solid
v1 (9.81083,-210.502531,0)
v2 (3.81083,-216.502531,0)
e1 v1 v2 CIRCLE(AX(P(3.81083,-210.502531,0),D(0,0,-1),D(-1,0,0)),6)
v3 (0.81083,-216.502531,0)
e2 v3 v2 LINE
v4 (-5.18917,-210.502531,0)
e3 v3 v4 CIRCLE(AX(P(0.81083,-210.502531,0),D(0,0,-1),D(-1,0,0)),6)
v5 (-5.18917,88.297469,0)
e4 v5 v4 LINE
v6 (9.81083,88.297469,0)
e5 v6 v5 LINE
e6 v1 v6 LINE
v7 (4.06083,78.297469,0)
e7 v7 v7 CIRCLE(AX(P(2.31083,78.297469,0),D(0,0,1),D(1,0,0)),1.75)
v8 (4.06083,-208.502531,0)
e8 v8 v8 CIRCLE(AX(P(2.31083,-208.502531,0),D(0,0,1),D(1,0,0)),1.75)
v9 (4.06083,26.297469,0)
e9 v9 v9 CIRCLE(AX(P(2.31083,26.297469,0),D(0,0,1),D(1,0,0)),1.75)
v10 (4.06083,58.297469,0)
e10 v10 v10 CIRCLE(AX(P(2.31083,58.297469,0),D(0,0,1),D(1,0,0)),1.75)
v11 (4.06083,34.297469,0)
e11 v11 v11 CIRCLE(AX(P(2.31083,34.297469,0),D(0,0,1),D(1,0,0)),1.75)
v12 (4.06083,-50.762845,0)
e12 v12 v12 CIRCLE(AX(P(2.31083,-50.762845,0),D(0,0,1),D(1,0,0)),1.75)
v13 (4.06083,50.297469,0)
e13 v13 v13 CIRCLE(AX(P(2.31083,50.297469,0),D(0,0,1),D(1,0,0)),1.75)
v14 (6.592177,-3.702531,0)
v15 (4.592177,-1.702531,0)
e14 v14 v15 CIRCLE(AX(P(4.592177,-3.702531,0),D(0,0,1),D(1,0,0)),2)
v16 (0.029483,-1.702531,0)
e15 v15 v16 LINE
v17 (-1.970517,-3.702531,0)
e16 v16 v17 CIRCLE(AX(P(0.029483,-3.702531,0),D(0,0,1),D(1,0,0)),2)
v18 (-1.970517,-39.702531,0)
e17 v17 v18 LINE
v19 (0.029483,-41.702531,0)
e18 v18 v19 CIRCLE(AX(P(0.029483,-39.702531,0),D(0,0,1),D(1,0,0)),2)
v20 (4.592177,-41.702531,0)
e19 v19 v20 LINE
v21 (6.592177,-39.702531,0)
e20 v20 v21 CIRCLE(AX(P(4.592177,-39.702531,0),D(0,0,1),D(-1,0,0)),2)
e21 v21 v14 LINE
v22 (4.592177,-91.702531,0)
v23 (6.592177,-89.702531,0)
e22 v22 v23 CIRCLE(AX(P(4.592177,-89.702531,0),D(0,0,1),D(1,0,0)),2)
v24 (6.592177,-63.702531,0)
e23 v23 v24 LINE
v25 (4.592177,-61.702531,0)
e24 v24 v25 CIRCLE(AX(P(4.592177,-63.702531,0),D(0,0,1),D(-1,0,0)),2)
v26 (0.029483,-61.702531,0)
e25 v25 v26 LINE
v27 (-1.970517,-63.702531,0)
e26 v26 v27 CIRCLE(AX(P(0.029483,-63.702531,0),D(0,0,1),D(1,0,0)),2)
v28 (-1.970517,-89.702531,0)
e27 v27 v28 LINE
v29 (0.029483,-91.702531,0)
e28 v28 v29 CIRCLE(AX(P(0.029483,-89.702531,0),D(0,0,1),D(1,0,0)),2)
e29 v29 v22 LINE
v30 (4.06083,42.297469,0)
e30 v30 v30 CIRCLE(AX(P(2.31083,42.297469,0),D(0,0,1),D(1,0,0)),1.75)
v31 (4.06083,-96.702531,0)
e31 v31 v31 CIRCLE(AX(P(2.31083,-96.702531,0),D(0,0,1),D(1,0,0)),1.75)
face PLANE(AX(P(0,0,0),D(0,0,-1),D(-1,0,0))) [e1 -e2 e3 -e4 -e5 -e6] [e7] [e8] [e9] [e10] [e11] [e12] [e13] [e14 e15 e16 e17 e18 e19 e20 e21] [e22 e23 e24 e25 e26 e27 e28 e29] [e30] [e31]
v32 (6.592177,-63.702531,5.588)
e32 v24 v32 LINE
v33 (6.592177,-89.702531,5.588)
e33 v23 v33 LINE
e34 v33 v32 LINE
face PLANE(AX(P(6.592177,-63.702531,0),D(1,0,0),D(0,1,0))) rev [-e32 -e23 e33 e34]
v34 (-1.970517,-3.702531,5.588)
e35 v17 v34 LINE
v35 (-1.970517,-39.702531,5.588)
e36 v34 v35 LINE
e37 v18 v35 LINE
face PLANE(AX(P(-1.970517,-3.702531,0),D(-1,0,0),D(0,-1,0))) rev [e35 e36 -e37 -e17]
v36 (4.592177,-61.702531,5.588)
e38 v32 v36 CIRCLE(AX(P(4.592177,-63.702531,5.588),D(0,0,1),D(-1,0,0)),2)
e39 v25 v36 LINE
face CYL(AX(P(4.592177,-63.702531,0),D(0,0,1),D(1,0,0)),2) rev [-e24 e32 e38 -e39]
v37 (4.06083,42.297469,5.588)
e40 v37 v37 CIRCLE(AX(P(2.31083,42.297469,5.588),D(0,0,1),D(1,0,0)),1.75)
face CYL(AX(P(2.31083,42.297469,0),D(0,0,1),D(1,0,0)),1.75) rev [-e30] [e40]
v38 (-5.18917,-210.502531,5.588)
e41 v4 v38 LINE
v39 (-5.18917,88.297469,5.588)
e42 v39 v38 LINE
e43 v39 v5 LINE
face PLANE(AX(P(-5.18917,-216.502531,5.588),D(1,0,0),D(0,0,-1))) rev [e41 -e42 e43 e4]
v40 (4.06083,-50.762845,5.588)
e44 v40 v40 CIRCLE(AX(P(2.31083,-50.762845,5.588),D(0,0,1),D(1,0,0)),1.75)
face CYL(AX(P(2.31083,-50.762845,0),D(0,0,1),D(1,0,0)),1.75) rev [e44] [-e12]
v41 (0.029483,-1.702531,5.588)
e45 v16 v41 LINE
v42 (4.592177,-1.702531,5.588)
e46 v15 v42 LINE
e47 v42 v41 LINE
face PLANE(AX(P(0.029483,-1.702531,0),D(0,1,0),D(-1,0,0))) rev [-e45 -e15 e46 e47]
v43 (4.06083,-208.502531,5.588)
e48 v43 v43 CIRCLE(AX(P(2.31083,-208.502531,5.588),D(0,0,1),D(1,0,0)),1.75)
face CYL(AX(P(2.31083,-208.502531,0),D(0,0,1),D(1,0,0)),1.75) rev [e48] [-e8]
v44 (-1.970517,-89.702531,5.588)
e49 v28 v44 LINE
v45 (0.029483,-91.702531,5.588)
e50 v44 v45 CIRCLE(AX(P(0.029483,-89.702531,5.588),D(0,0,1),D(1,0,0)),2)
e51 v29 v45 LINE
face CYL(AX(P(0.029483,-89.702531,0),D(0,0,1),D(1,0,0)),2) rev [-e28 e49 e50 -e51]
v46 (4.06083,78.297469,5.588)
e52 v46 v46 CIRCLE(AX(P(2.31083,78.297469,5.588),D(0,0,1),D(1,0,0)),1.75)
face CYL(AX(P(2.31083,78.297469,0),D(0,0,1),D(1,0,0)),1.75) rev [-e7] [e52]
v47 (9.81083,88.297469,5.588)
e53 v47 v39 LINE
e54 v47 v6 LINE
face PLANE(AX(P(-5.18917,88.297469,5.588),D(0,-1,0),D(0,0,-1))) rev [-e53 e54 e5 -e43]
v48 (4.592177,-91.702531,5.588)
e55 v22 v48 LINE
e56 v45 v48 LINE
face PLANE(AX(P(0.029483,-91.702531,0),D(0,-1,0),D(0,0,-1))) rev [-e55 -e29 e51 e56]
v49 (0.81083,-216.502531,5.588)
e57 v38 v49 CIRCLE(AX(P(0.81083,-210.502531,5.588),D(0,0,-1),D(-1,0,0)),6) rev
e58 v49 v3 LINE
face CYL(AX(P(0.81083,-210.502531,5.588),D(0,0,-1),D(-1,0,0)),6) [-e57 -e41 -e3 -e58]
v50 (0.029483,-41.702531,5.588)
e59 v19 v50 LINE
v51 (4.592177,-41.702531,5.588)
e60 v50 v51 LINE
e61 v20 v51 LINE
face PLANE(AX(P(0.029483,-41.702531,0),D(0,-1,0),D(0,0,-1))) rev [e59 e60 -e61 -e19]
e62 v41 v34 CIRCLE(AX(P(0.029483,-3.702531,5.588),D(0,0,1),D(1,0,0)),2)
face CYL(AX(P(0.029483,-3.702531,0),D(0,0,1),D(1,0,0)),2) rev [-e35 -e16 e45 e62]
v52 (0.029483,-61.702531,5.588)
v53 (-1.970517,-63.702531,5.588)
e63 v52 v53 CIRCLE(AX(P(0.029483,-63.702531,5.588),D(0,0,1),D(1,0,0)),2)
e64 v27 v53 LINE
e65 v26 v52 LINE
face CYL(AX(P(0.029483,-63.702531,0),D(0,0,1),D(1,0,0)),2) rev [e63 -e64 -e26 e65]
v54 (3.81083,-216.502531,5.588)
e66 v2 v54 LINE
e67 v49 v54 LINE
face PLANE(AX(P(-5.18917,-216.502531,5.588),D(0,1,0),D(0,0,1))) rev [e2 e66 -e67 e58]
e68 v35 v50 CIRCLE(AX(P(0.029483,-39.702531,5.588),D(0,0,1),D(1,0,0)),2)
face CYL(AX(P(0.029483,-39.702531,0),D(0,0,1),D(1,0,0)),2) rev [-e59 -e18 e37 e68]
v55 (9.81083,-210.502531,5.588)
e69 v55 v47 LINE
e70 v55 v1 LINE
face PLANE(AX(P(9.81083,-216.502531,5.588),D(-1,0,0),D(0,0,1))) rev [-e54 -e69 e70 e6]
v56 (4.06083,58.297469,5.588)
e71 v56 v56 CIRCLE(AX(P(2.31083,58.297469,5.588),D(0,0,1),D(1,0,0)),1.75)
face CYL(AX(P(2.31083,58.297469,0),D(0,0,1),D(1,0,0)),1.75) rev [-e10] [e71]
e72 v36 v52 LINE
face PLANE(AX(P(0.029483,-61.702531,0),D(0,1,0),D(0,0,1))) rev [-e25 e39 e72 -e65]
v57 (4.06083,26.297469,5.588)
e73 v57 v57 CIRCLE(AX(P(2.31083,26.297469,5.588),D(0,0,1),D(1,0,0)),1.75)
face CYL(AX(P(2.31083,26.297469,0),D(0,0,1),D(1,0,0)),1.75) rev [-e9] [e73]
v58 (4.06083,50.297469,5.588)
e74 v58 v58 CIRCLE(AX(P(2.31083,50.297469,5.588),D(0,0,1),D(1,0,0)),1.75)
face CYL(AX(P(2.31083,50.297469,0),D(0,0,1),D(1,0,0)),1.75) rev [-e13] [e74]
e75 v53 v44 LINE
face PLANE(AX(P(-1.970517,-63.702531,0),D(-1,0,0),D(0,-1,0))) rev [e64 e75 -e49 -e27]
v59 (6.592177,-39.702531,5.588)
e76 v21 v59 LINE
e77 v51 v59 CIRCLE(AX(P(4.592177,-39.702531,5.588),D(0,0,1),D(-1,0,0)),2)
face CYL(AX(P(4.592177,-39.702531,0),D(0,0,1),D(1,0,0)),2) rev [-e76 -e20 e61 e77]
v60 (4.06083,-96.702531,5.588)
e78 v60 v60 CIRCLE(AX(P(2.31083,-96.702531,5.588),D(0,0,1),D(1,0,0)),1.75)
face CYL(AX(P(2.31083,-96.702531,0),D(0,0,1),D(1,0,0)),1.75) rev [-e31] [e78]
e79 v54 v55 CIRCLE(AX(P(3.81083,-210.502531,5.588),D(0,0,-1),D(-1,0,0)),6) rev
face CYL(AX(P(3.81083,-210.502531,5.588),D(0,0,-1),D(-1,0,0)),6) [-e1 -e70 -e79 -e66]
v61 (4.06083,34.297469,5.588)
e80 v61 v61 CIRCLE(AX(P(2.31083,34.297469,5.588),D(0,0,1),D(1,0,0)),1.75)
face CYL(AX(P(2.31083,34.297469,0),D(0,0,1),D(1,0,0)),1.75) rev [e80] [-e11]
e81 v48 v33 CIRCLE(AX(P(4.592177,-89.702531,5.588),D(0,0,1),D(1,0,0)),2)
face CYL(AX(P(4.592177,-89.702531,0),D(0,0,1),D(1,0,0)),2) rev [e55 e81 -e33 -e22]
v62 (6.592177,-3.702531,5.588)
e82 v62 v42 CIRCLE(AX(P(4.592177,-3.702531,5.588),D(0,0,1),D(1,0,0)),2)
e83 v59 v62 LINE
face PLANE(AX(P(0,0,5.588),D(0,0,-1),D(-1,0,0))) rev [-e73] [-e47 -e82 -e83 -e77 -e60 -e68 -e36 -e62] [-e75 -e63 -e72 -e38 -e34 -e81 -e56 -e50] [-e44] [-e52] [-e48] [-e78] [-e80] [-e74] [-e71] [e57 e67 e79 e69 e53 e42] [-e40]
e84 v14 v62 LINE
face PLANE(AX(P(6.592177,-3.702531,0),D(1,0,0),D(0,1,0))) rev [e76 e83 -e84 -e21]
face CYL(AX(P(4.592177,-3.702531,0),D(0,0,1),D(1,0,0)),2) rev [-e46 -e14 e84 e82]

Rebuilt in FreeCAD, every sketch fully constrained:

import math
import FreeCAD as App
import Part
import Sketcher
from FreeCAD import Vector
Q = App.Units.Quantity


def edges_at(feature, points):
    """Names of the edges that pass closest to the given points."""
    edges = feature.Shape.Edges
    near = lambda p: min(range(len(edges)), key=lambda i: edges[i].distToShape(Part.Vertex(*p))[0])
    return sorted({f"Edge{near(p) + 1}" for p in points})

doc = App.newDocument("Part")
params = doc.addObject("Spreadsheet::Sheet", "Params")
for row, (alias, value) in enumerate([
    ("sketch1_width", "15 mm"),
    ("sketch1_height", "304.8 mm"),
    ("pad1_length", "5.588 mm"),
    ("sketch2_radius", "2 mm"),
    ("sketch2_diameter", "3.5 mm"),
    ("sketch2_height", "36 mm"),
    ("sketch2_height2", "26 mm"),
    ("sketch3_diameter", "3.5 mm"),
    ("fillet_radius", "6 mm"),
], start=1):
    params.set(f"A{row}", alias)
    params.set(f"B{row}", "=" + value)
    params.setAlias(f"B{row}", alias)

body = doc.addObject("PartDesign::Body", "Body")

sketch1 = body.newObject("Sketcher::SketchObject", "Sketch")
sketch1.AttachmentSupport = (doc.getObject("XY_Plane"), [""])
sketch1.MapMode = "FlatFace"
sketch1.addGeometry([
    Part.LineSegment(Vector(-5, 88, 0), Vector(-5, -217, 0)),
    Part.LineSegment(Vector(-5, -217, 0), Vector(10, -217, 0)),
    Part.LineSegment(Vector(10, -217, 0), Vector(10, 88, 0)),
    Part.LineSegment(Vector(10, 88, 0), Vector(-5, 88, 0)),
], False)
sketch1.addConstraint([
    Sketcher.Constraint("Coincident", 0, 2, 1, 1),
    Sketcher.Constraint("Coincident", 1, 2, 2, 1),
    Sketcher.Constraint("Coincident", 2, 2, 3, 1),
    Sketcher.Constraint("Coincident", 3, 2, 0, 1),
    Sketcher.Constraint("Vertical", 0),
    Sketcher.Constraint("Horizontal", 1),
    Sketcher.Constraint("Vertical", 2),
    Sketcher.Constraint("Horizontal", 3),
    Sketcher.Constraint("DistanceX", 1, 1, 1, 2, Q("15 mm")),
    Sketcher.Constraint("DistanceY", 0, 2, 0, 1, Q("304.8 mm")),
    Sketcher.Constraint("DistanceX", 0, 2, -1, 1, Q("5.18917 mm")),
    Sketcher.Constraint("DistanceY", 0, 2, -1, 1, Q("216.502531 mm")),
])
sketch1.setExpression("Constraints[8]", "Params.sketch1_width")
sketch1.setExpression("Constraints[9]", "Params.sketch1_height")
pad1 = body.newObject("PartDesign::Pad", "Pad")
pad1.Profile = sketch1
pad1.setExpression("Length", "Params.pad1_length")

sketch2 = body.newObject("Sketcher::SketchObject", "Sketch001")
sketch2.AttachmentSupport = (doc.getObject("XY_Plane"), [""])
sketch2.MapMode = "FlatFace"
sketch2.AttachmentOffset = App.Placement(Vector(0, 0, 5.588), App.Rotation())
sketch2.addGeometry([
    Part.Circle(Vector(2.3, 78.3, 0), Vector(0, 0, 1), 1.8),
    Part.Circle(Vector(2.3, 58.3, 0), Vector(0, 0, 1), 1.8),
    Part.Circle(Vector(2.3, 50.3, 0), Vector(0, 0, 1), 1.8),
    Part.Circle(Vector(2.3, 42.3, 0), Vector(0, 0, 1), 1.8),
    Part.Circle(Vector(2.3, 34.3, 0), Vector(0, 0, 1), 1.8),
    Part.Circle(Vector(2.3, 26.3, 0), Vector(0, 0, 1), 1.8),
    Part.Circle(Vector(2.3, -50.8, 0), Vector(0, 0, 1), 1.8),
    Part.Circle(Vector(2.3, -96.7, 0), Vector(0, 0, 1), 1.8),
    Part.LineSegment(Vector(4.6, -1.7, 0), Vector(0, -1.7, 0)),
    Part.ArcOfCircle(Part.Circle(Vector(0, -3.7, 0), Vector(0, 0, 1), 2), math.radians(90), math.radians(180)),
    Part.LineSegment(Vector(-2, -3.7, 0), Vector(-2, -39.7, 0)),
    Part.ArcOfCircle(Part.Circle(Vector(0, -39.7, 0), Vector(0, 0, 1), 2), math.radians(180), math.radians(270)),
    Part.LineSegment(Vector(0, -41.7, 0), Vector(4.6, -41.7, 0)),
    Part.ArcOfCircle(Part.Circle(Vector(4.6, -39.7, 0), Vector(0, 0, 1), 2), math.radians(-90), math.radians(0)),
    Part.LineSegment(Vector(6.6, -39.7, 0), Vector(6.6, -3.7, 0)),
    Part.ArcOfCircle(Part.Circle(Vector(4.6, -3.7, 0), Vector(0, 0, 1), 2), math.radians(0), math.radians(90)),
    Part.LineSegment(Vector(4.6, -61.7, 0), Vector(0, -61.7, 0)),
    Part.ArcOfCircle(Part.Circle(Vector(0, -63.7, 0), Vector(0, 0, 1), 2), math.radians(90), math.radians(180)),
    Part.LineSegment(Vector(-2, -63.7, 0), Vector(-2, -89.7, 0)),
    Part.ArcOfCircle(Part.Circle(Vector(0, -89.7, 0), Vector(0, 0, 1), 2), math.radians(180), math.radians(270)),
    Part.LineSegment(Vector(0, -91.7, 0), Vector(4.6, -91.7, 0)),
    Part.ArcOfCircle(Part.Circle(Vector(4.6, -89.7, 0), Vector(0, 0, 1), 2), math.radians(-90), math.radians(0)),
    Part.LineSegment(Vector(6.6, -89.7, 0), Vector(6.6, -63.7, 0)),
    Part.ArcOfCircle(Part.Circle(Vector(4.6, -63.7, 0), Vector(0, 0, 1), 2), math.radians(0), math.radians(90)),
], False)
sketch2.addConstraint([
    Sketcher.Constraint("Tangent", 8, 2, 9, 1),
    Sketcher.Constraint("Tangent", 9, 2, 10, 1),
    Sketcher.Constraint("Tangent", 10, 2, 11, 1),
    Sketcher.Constraint("Tangent", 11, 2, 12, 1),
    Sketcher.Constraint("Tangent", 12, 2, 13, 1),
    Sketcher.Constraint("Tangent", 13, 2, 14, 1),
    Sketcher.Constraint("Tangent", 14, 2, 15, 1),
    Sketcher.Constraint("Tangent", 15, 2, 8, 1),
    Sketcher.Constraint("Tangent", 16, 2, 17, 1),
    Sketcher.Constraint("Tangent", 17, 2, 18, 1),
    Sketcher.Constraint("Tangent", 18, 2, 19, 1),
    Sketcher.Constraint("Tangent", 19, 2, 20, 1),
    Sketcher.Constraint("Tangent", 20, 2, 21, 1),
    Sketcher.Constraint("Tangent", 21, 2, 22, 1),
    Sketcher.Constraint("Tangent", 22, 2, 23, 1),
    Sketcher.Constraint("Tangent", 23, 2, 16, 1),
    Sketcher.Constraint("Horizontal", 8),
    Sketcher.Constraint("Vertical", 10),
    Sketcher.Constraint("Horizontal", 12),
    Sketcher.Constraint("Vertical", 14),
    Sketcher.Constraint("Horizontal", 16),
    Sketcher.Constraint("Vertical", 18),
    Sketcher.Constraint("Horizontal", 20),
    Sketcher.Constraint("Vertical", 22),
    Sketcher.Constraint("Equal", 0, 1),
    Sketcher.Constraint("Equal", 1, 2),
    Sketcher.Constraint("Equal", 2, 3),
    Sketcher.Constraint("Equal", 3, 4),
    Sketcher.Constraint("Equal", 4, 5),
    Sketcher.Constraint("Equal", 5, 6),
    Sketcher.Constraint("Equal", 6, 7),
    Sketcher.Constraint("Equal", 9, 11),
    Sketcher.Constraint("Equal", 11, 13),
    Sketcher.Constraint("Equal", 13, 15),
    Sketcher.Constraint("Equal", 15, 17),
    Sketcher.Constraint("Equal", 17, 19),
    Sketcher.Constraint("Equal", 19, 21),
    Sketcher.Constraint("Equal", 21, 23),
    Sketcher.Constraint("Vertical", 0, 3, 1, 3),
    Sketcher.Constraint("Vertical", 1, 3, 2, 3),
    Sketcher.Constraint("Vertical", 2, 3, 3, 3),
    Sketcher.Constraint("Vertical", 3, 3, 4, 3),
    Sketcher.Constraint("Vertical", 4, 3, 5, 3),
    Sketcher.Constraint("Vertical", 5, 3, 6, 3),
    Sketcher.Constraint("Vertical", 6, 3, 7, 3),
    Sketcher.Constraint("Vertical", 11, 3, 17, 3),
    Sketcher.Constraint("Vertical", 15, 3, 21, 3),
    Sketcher.Constraint("Radius", 9, Q("2 mm")),
    Sketcher.Constraint("Diameter", 0, Q("3.5 mm")),
    Sketcher.Constraint("DistanceY", 10, 2, 10, 1, Q("36 mm")),
    Sketcher.Constraint("DistanceY", 18, 2, 18, 1, Q("26 mm")),
    Sketcher.Constraint("DistanceY", 1, 3, 0, 3, Q("20 mm")),
    Sketcher.Constraint("DistanceY", 2, 3, 1, 3, Q("8 mm")),
    Sketcher.Constraint("DistanceY", 3, 3, 2, 3, Q("8 mm")),
    Sketcher.Constraint("DistanceY", 4, 3, 3, 3, Q("8 mm")),
    Sketcher.Constraint("DistanceY", 5, 3, 4, 3, Q("8 mm")),
    Sketcher.Constraint("DistanceY", 7, 3, 5, 3, Q("123 mm")),
    Sketcher.Constraint("DistanceY", 9, 3, 5, 3, Q("30 mm")),
    Sketcher.Constraint("DistanceY", 17, 3, 11, 3, Q("24 mm")),
    Sketcher.Constraint("DistanceX", 8, 2, 8, 1, Q("4.562694 mm")),
    Sketcher.Constraint("DistanceX", -1, 1, 0, 3, Q("2.31083 mm")),
    Sketcher.Constraint("DistanceY", -1, 1, 0, 3, Q("78.297469 mm")),
    Sketcher.Constraint("DistanceY", 6, 3, -1, 1, Q("50.762845 mm")),
    Sketcher.Constraint("DistanceX", -1, 1, 9, 3, Q("0.029483 mm")),
])
sketch2.setExpression("Constraints[47]", "Params.sketch2_radius")
sketch2.setExpression("Constraints[48]", "Params.sketch2_diameter")
sketch2.setExpression("Constraints[49]", "Params.sketch2_height")
sketch2.setExpression("Constraints[50]", "Params.sketch2_height2")
pocket1 = body.newObject("PartDesign::Pocket", "Pocket")
pocket1.Profile = sketch2
pocket1.Type = "ThroughAll"

sketch3 = body.newObject("Sketcher::SketchObject", "Sketch002")
sketch3.AttachmentSupport = (doc.getObject("XY_Plane"), [""])
sketch3.MapMode = "FlatFace"
sketch3.AttachmentOffset = App.Placement(Vector(0, 0, 5.588), App.Rotation())
sketch3.addGeometry(Part.Circle(Vector(2.3, -208.5, 0), Vector(0, 0, 1), 1.8), False)
sketch3.addConstraint([
    Sketcher.Constraint("Diameter", 0, Q("3.5 mm")),
    Sketcher.Constraint("DistanceX", -1, 1, 0, 3, Q("2.31083 mm")),
    Sketcher.Constraint("DistanceY", 0, 3, -1, 1, Q("208.502531 mm")),
])
sketch3.setExpression("Constraints[0]", "Params.sketch3_diameter")
pocket2 = body.newObject("PartDesign::Pocket", "Pocket001")
pocket2.Profile = sketch3
pocket2.Type = "ThroughAll"
doc.recompute()

fillet = body.newObject("PartDesign::Fillet", "Fillet")
fillet.Base = (pocket2, edges_at(pocket2, [(9.811, -216.503, 2.794), (-5.189, -216.503, 2.794)]))
fillet.setExpression("Radius", "Params.fillet_radius")

doc.recompute()
